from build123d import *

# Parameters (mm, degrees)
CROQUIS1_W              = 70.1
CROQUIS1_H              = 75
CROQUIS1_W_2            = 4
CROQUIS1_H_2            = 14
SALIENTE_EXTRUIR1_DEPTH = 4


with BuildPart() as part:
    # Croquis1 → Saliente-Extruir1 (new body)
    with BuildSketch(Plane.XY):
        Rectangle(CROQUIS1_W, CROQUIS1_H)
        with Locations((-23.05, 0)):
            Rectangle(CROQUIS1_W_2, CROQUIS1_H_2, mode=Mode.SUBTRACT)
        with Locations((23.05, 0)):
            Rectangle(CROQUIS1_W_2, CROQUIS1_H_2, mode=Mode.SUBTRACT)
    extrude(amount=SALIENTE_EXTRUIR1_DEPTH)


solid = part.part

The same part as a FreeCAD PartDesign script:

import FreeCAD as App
import Part
import Sketcher
from FreeCAD import Vector
Q = App.Units.Quantity


def add_polygon(sketch, points):
    """Adds a closed chain of lines whose ends are joined by coincident constraints."""
    first, n = sketch.GeometryCount, len(points)
    for a, b in zip(points, points[1:] + points[:1]):
        sketch.addGeometry(Part.LineSegment(App.Vector(*a, 0), App.Vector(*b, 0)), False)
    for i in range(n):
        sketch.addConstraint(Sketcher.Constraint("Coincident", first + i, 2, first + (i + 1) % n, 1))

doc = App.newDocument("Part")
body = doc.addObject("PartDesign::Body", "Body")

sketch1 = body.newObject("Sketcher::SketchObject", "Sketch")
sketch1.AttachmentSupport = (doc.getObject("XY_Plane"), [""])
sketch1.MapMode = "FlatFace"
add_polygon(sketch1, [(-35, 37.5), (-35, -37.5), (35, -37.5), (35, 37.5)])
add_polygon(sketch1, [(-21.1, -7), (-25.1, -7), (-25.1, 7), (-21.1, 7)])
add_polygon(sketch1, [(25.1, -7), (21.1, -7), (21.1, 7), (25.1, 7)])
sketch1.addConstraint([
    Sketcher.Constraint("Vertical", 0),
    Sketcher.Constraint("Horizontal", 1),
    Sketcher.Constraint("Vertical", 2),
    Sketcher.Constraint("Horizontal", 3),
    Sketcher.Constraint("Horizontal", 4),
    Sketcher.Constraint("Vertical", 5),
    Sketcher.Constraint("Horizontal", 6),
    Sketcher.Constraint("Vertical", 7),
    Sketcher.Constraint("Horizontal", 8),
    Sketcher.Constraint("Vertical", 9),
    Sketcher.Constraint("Horizontal", 10),
    Sketcher.Constraint("Vertical", 11),
    Sketcher.Constraint("Symmetric", 0, 2, 2, 2, -1, 1),
    Sketcher.Constraint("Symmetric", 6, 2, 8, 2, -1, 1),
    Sketcher.Constraint("Symmetric", 4, 2, 10, 2, -1, 1),
    Sketcher.Constraint("Horizontal", 7, 2, 8, 2),
    Sketcher.Constraint("DistanceX", 4, 2, 4, 1, Q("4 mm")),
    Sketcher.Constraint("DistanceY", 0, 2, 0, 1, Q("75 mm")),
    Sketcher.Constraint("DistanceY", 5, 1, 5, 2, Q("14 mm")),
    Sketcher.Constraint("DistanceX", 1, 1, 1, 2, Q("70.1 mm")),
    Sketcher.Constraint("DistanceX", 0, 2, 4, 2, Q("10 mm")),
])
pad1 = body.newObject("PartDesign::Pad", "Pad")
pad1.Profile = sketch1
pad1.Length = 4

doc.recompute()
